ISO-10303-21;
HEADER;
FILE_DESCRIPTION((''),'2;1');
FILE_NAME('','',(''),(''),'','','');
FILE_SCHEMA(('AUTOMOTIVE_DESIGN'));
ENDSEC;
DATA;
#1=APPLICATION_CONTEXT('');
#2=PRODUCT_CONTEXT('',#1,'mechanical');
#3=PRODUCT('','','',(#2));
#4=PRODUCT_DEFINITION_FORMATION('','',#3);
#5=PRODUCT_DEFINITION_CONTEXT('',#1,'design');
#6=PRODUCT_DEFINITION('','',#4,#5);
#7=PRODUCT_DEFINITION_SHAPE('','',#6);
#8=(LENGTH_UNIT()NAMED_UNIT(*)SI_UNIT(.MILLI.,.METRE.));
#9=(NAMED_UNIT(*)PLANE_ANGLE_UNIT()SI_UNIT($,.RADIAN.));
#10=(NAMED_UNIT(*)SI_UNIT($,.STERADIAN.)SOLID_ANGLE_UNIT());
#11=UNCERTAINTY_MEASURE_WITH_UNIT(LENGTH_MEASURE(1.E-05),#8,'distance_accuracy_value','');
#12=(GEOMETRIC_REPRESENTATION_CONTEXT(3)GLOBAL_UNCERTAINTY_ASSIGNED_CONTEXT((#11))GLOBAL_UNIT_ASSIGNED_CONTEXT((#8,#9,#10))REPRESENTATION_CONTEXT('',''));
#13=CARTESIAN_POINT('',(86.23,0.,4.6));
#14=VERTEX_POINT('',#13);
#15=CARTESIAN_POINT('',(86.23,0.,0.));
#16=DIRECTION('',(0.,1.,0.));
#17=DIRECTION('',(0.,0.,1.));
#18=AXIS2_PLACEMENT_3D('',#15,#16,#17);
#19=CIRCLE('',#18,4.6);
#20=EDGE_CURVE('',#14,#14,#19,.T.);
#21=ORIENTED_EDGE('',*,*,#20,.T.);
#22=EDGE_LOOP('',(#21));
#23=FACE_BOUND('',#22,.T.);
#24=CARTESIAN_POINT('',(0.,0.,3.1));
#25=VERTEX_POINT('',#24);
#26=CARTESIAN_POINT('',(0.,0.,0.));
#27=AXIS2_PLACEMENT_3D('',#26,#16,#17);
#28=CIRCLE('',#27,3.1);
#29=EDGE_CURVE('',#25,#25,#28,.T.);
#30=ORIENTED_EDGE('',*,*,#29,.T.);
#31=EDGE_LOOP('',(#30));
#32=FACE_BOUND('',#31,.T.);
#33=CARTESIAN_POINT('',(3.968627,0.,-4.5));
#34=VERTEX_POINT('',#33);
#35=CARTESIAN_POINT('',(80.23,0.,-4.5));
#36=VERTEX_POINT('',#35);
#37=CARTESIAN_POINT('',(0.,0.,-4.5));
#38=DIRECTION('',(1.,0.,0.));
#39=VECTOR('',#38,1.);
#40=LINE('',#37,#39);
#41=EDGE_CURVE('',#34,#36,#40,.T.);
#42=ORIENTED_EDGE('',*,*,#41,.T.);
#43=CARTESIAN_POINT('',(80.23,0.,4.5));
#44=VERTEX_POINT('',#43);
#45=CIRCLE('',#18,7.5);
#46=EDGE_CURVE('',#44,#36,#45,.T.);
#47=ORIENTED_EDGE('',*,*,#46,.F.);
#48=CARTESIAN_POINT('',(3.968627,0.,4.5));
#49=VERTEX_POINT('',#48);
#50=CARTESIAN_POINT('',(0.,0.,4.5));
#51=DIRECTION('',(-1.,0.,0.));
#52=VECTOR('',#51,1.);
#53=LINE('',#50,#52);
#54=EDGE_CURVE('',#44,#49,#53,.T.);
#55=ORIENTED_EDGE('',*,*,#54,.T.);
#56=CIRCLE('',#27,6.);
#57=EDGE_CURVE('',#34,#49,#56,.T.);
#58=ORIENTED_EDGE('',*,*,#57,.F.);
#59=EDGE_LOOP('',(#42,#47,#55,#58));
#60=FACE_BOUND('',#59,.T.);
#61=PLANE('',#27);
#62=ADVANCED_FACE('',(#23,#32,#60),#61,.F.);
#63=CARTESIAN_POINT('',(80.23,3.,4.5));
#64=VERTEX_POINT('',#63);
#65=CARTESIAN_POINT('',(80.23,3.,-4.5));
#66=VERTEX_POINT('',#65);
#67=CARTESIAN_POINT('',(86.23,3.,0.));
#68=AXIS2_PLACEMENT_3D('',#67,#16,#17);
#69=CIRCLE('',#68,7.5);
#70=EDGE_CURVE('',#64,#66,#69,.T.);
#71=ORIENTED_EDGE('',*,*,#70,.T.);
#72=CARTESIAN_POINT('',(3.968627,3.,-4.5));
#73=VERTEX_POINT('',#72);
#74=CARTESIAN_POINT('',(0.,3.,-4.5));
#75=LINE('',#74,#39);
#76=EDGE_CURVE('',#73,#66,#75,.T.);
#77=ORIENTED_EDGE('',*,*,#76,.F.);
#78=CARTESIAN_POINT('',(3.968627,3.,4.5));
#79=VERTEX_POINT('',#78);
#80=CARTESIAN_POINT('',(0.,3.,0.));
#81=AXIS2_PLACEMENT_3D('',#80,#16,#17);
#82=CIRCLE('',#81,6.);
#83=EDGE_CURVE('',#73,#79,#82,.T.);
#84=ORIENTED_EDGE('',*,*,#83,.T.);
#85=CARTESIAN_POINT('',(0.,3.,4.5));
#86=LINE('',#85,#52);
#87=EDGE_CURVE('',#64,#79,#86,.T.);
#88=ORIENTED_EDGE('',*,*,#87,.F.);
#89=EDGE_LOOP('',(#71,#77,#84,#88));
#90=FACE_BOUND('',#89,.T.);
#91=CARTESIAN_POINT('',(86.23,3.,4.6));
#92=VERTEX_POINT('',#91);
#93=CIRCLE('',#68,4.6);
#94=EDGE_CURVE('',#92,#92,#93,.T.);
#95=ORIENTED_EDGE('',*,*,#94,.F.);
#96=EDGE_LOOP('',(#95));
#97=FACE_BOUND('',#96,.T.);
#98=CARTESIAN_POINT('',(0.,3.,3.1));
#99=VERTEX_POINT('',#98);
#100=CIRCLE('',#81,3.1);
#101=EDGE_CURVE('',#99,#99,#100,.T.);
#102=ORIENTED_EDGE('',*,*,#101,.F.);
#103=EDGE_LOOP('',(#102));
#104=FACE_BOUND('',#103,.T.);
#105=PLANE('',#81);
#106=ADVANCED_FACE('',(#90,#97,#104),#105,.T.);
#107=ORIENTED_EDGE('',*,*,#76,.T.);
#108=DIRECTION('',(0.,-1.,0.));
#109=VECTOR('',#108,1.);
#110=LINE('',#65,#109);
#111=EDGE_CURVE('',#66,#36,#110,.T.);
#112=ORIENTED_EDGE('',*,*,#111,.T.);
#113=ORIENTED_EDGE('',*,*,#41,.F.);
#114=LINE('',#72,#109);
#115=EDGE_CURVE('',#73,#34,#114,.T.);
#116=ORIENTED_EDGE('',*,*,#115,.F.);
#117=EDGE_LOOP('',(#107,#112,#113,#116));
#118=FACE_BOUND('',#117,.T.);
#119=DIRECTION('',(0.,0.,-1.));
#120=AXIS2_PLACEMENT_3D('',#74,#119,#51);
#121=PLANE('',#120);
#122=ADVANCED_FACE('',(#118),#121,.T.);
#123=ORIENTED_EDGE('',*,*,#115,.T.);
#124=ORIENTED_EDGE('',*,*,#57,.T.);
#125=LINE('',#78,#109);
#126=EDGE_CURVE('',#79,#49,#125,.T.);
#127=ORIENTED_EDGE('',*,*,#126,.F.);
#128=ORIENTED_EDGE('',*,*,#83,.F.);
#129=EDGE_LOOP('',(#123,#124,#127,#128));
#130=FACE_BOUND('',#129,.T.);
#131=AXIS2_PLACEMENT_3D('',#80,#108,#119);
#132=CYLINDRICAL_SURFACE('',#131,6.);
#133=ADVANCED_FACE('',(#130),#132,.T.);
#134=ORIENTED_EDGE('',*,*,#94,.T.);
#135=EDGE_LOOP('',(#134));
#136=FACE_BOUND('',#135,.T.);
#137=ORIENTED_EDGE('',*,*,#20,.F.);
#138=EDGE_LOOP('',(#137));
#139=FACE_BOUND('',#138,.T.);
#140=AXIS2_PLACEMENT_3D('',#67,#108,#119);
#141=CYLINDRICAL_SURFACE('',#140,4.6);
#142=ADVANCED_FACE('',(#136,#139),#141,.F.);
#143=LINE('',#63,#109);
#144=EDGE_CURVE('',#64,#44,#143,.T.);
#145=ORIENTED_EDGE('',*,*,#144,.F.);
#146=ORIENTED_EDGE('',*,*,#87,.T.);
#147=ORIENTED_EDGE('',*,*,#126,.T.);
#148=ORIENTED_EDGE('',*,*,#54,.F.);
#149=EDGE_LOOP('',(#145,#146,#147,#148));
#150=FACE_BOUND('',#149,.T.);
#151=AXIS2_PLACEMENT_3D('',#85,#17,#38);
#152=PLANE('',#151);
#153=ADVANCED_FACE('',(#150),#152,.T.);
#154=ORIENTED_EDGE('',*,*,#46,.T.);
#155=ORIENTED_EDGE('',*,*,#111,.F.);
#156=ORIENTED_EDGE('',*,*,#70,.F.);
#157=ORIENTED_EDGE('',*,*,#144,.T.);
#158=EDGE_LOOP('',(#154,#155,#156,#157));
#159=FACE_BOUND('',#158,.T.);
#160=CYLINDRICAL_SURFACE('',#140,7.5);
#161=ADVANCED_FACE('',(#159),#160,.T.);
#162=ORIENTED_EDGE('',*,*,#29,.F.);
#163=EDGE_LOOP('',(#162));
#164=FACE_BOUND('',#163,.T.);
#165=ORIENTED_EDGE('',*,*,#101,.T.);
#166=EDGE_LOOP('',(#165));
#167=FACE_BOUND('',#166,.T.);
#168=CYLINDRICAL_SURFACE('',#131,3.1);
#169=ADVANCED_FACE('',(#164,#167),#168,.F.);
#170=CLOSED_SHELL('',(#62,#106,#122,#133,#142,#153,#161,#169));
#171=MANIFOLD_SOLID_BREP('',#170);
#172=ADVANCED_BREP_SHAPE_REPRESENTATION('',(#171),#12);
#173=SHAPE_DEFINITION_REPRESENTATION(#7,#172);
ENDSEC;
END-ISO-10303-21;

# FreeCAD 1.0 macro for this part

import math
import FreeCAD as App
import Part
import Sketcher
Q = App.Units.Quantity

doc = App.newDocument("Part")
body = doc.addObject("PartDesign::Body", "Body")

# Sketch on XZ plane
sketch1 = body.newObject("Sketcher::SketchObject", "Sketch")
sketch1.AttachmentSupport = (doc.getObject("XZ_Plane"), [""])
sketch1.MapMode = "FlatFace"
sketch1.addGeometry([
    Part.ArcOfCircle(Part.Circle(App.Vector(0, 0, 0), App.Vector(0, 0, 1), 6), math.radians(49), math.radians(311)),  # 0
    Part.LineSegment(App.Vector(4, 4.5, 0), App.Vector(80.2, 4.5, 0)),  # 1
    Part.ArcOfCircle(Part.Circle(App.Vector(86.2, 0, 0), App.Vector(0, 0, 1), 7.5), math.radians(-143), math.radians(143)),  # 2
    Part.LineSegment(App.Vector(80.2, -4.5, 0), App.Vector(4, -4.5, 0)),  # 3
    Part.Circle(App.Vector(0, 0, 0), App.Vector(0, 0, 1), 3.1),  # 4
    Part.Circle(App.Vector(86.2, 0, 0), App.Vector(0, 0, 1), 4.6),  # 5
], False)
sketch1.addConstraint([
    Sketcher.Constraint("Coincident", 0, 1, 1, 1),
    Sketcher.Constraint("Coincident", 1, 2, 2, 2),
    Sketcher.Constraint("Coincident", 2, 1, 3, 1),
    Sketcher.Constraint("Coincident", 3, 2, 0, 2),
    Sketcher.Constraint("Horizontal", 1),
    Sketcher.Constraint("Horizontal", 3),
    Sketcher.Constraint("Coincident", 0, 3, -1, 1),
    Sketcher.Constraint("Coincident", 4, 3, -1, 1),
    Sketcher.Constraint("Coincident", 5, 3, 2, 3),
    Sketcher.Constraint("Symmetric", 1, 2, 2, 1, -1),
    Sketcher.Constraint("Radius", 0, Q("6 mm")),
    Sketcher.Constraint("Diameter", 4, Q("6.2 mm")),
    Sketcher.Constraint("Diameter", 5, Q("9.2 mm")),
    Sketcher.Constraint("Radius", 2, Q("7.5 mm")),
    Sketcher.Constraint("DistanceX", 1, 2, 2, 3, Q("6 mm")),
    Sketcher.Constraint("DistanceX", -1, 1, 2, 3, Q("86.23 mm")),
])
pad1 = body.newObject("PartDesign::Pad", "Pad")
pad1.Profile = sketch1
pad1.Length = 3
pad1.Reversed = True

doc.recompute()
